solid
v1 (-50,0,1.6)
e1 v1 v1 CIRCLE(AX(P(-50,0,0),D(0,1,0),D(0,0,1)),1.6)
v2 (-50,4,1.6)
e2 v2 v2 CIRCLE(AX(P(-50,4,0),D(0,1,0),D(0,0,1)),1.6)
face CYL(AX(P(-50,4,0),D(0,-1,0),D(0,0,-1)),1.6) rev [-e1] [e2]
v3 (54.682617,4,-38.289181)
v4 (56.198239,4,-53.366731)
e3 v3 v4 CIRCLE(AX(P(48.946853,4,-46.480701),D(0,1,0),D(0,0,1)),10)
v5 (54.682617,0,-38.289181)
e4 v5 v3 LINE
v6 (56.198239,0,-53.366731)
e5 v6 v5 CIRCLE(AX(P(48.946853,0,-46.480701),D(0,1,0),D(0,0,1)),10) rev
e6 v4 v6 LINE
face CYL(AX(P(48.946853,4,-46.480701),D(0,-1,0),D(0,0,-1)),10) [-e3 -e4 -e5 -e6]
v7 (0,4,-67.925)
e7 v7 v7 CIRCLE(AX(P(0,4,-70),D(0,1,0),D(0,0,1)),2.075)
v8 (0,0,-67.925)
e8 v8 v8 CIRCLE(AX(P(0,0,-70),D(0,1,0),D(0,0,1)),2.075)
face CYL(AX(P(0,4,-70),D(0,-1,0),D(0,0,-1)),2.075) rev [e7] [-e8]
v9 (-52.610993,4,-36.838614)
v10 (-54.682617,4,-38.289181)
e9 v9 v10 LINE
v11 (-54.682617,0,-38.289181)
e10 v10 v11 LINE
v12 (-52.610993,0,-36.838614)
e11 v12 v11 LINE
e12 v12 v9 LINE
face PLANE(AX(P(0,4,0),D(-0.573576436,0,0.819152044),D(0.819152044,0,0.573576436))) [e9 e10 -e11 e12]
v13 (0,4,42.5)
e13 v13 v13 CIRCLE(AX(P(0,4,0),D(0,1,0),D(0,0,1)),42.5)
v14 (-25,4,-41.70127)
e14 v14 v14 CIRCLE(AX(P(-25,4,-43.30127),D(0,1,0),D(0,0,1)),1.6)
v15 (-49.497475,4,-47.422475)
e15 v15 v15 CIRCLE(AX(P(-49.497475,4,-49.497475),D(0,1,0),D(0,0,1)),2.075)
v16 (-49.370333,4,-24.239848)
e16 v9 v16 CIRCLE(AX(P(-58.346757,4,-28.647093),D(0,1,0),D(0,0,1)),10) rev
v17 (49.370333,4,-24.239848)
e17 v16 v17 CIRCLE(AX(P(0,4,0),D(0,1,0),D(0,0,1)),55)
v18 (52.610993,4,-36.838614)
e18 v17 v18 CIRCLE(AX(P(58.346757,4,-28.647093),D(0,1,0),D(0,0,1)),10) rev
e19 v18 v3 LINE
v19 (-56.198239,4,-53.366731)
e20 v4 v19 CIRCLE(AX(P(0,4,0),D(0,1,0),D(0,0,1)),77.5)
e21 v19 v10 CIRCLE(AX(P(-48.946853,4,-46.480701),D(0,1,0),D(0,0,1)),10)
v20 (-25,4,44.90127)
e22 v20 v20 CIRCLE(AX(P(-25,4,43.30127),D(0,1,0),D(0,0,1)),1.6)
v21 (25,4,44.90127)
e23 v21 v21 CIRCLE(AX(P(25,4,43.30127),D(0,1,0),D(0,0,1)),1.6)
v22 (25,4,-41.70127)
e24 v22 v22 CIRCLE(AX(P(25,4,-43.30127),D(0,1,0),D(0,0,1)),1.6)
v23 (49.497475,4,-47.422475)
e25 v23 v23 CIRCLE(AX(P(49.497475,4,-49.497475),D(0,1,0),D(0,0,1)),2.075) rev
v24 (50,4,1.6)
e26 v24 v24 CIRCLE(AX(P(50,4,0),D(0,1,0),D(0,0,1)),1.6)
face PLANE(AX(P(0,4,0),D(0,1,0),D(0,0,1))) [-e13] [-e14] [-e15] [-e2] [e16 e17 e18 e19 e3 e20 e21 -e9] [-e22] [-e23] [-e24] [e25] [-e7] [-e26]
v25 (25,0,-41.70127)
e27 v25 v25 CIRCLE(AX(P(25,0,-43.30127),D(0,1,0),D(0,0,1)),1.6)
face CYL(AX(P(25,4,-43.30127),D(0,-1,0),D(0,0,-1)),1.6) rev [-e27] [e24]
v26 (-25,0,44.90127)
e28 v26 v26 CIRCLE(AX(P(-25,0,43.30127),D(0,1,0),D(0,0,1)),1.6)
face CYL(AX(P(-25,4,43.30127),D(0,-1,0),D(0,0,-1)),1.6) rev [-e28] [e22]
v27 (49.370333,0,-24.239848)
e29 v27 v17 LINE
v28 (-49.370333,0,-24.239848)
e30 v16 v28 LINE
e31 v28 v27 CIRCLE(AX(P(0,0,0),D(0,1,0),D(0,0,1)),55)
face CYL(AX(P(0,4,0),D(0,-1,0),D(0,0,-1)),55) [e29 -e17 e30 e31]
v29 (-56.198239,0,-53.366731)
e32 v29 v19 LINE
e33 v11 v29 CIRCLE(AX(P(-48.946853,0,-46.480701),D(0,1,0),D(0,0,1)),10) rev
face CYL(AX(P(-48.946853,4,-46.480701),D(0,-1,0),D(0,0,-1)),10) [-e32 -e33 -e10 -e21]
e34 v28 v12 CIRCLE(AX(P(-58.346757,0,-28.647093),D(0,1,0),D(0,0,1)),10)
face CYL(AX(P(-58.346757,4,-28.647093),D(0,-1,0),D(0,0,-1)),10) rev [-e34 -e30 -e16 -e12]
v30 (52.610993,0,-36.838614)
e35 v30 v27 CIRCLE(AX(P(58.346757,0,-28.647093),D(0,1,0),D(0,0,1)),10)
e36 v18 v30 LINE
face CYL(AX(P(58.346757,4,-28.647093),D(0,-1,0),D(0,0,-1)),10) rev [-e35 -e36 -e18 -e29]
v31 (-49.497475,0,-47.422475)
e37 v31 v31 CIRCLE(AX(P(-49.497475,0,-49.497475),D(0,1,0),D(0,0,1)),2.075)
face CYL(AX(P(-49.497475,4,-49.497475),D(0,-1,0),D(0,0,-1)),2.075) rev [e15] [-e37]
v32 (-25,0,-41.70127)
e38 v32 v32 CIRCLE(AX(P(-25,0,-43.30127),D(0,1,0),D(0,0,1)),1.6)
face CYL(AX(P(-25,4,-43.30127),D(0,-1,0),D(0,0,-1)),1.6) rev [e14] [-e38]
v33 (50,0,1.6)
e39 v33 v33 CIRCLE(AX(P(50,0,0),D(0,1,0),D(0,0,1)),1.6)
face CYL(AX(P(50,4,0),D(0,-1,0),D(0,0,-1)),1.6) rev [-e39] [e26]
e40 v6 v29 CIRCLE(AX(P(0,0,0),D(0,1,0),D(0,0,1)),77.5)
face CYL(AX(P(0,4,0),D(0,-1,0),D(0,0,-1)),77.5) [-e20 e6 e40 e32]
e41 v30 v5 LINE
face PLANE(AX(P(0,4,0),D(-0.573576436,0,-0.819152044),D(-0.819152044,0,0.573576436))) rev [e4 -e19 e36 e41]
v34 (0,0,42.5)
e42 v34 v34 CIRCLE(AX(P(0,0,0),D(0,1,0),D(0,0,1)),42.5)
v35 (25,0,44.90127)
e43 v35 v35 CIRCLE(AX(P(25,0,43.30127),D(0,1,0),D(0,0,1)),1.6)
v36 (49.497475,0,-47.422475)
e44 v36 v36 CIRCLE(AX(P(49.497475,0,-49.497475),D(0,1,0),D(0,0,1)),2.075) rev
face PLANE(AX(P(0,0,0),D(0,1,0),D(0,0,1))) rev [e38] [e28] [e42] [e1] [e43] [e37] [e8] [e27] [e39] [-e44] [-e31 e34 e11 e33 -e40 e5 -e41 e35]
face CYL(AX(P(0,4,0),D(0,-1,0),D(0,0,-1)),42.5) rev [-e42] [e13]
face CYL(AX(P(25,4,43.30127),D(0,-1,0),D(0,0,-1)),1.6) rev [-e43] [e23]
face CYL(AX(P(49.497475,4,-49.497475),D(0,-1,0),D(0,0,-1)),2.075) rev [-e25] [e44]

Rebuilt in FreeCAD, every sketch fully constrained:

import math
import FreeCAD as App
import Part
import Sketcher
Q = App.Units.Quantity


def edges_at(feature, points):
    """Names of the edges that pass closest to the given points."""
    edges = feature.Shape.Edges
    near = lambda p: min(range(len(edges)), key=lambda i: edges[i].distToShape(Part.Vertex(*p))[0])
    return sorted({f"Edge{near(p) + 1}" for p in points})

doc = App.newDocument("Part")
params = doc.addObject("Spreadsheet::Sheet", "Params")
for row, (alias, value) in enumerate([
    ("sketch1_radius", "55 mm"),
    ("sketch1_diameter", "3.2 mm"),
    ("sketch1_radius2", "77.5 mm"),
    ("sketch1_radius3", "42.5 mm"),
    ("sketch1_diameter2", "4.15 mm"),
    ("pad1_length", "4 mm"),
    ("fillet_radius", "10 mm"),
], start=1):
    params.set(f"A{row}", alias)
    params.set(f"B{row}", "=" + value)
    params.setAlias(f"B{row}", alias)

body = doc.addObject("PartDesign::Body", "Body")

# Sketch on XZ plane
sketch1 = body.newObject("Sketcher::SketchObject", "Sketch")
sketch1.AttachmentSupport = (doc.getObject("XZ_Plane"), [""])
sketch1.MapMode = "FlatFace"
sketch1.addGeometry([
    Part.LineSegment(App.Vector(-63.5, -44.5, 0), App.Vector(-45.1, -31.5, 0)),  # 0
    Part.ArcOfCircle(Part.Circle(App.Vector(0, 0, 0), App.Vector(0, 0, 1), 55), math.radians(0), math.radians(215)),  # 1
    Part.ArcOfCircle(Part.Circle(App.Vector(0, 0, 0), App.Vector(0, 0, 1), 55), math.radians(-35), math.radians(0)),  # 2
    Part.LineSegment(App.Vector(45.1, -31.5, 0), App.Vector(63.5, -44.5, 0)),  # 3
    Part.ArcOfCircle(Part.Circle(App.Vector(0, 0, 0), App.Vector(0, 0, 1), 77.5), math.radians(-145), math.radians(-35)),  # 4
    Part.Circle(App.Vector(-49.5, -49.5, 0), App.Vector(0, 0, 1), 2.1),  # 5
    Part.Circle(App.Vector(49.5, -49.5, 0), App.Vector(0, 0, 1), 2.1),  # 6
    Part.Circle(App.Vector(0, -70, 0), App.Vector(0, 0, 1), 2.1),  # 7
    Part.Circle(App.Vector(25, -43.3, 0), App.Vector(0, 0, 1), 1.6),  # 8
    Part.ArcOfCircle(Part.Circle(App.Vector(0, 0, 0), App.Vector(0, 0, 1), 42.5), math.radians(-145), math.radians(-35)),  # 9
    Part.ArcOfCircle(Part.Circle(App.Vector(0, 0, 0), App.Vector(0, 0, 1), 42.5), math.radians(-35), math.radians(0)),  # 10
    Part.ArcOfCircle(Part.Circle(App.Vector(0, 0, 0), App.Vector(0, 0, 1), 42.5), math.radians(0), math.radians(215)),  # 11
    Part.Circle(App.Vector(-25, -43.3, 0), App.Vector(0, 0, 1), 1.6),  # 12
    Part.Circle(App.Vector(50, 0, 0), App.Vector(0, 0, 1), 1.6),  # 13
    Part.Circle(App.Vector(-50, 0, 0), App.Vector(0, 0, 1), 1.6),  # 14
    Part.Circle(App.Vector(-25, 43.3, 0), App.Vector(0, 0, 1), 1.6),  # 15
    Part.Circle(App.Vector(25, 43.3, 0), App.Vector(0, 0, 1), 1.6),  # 16
], False)
sketch1.addConstraint([
    Sketcher.Constraint("Coincident", 0, 2, 1, 2),
    Sketcher.Constraint("Tangent", 1, 1, 2, 2),
    Sketcher.Constraint("Coincident", 2, 1, 3, 1),
    Sketcher.Constraint("Coincident", 3, 2, 4, 2),
    Sketcher.Constraint("Coincident", 4, 1, 0, 1),
    Sketcher.Constraint("Tangent", 9, 2, 10, 1),
    Sketcher.Constraint("Tangent", 10, 2, 11, 1),
    Sketcher.Constraint("Tangent", 11, 2, 9, 1),
    Sketcher.Constraint("Coincident", 1, 3, -1, 1),
    Sketcher.Constraint("Coincident", 4, 3, -1, 1),
    Sketcher.Constraint("Coincident", 9, 3, -1, 1),
    Sketcher.Constraint("Equal", 1, 2),
    Sketcher.Constraint("Equal", 5, 6),
    Sketcher.Constraint("Equal", 6, 7),
    Sketcher.Constraint("Equal", 8, 12),
    Sketcher.Constraint("Equal", 12, 13),
    Sketcher.Constraint("Equal", 13, 14),
    Sketcher.Constraint("Equal", 14, 15),
    Sketcher.Constraint("Equal", 15, 16),
    Sketcher.Constraint("Symmetric", 13, 3, 14, 3, -1, 1),
    Sketcher.Constraint("Symmetric", 8, 3, 15, 3, -1, 1),
    Sketcher.Constraint("Symmetric", 12, 3, 16, 3, -1, 1),
    Sketcher.Constraint("Symmetric", 5, 3, 6, 3, -2),
    Sketcher.Constraint("Symmetric", 8, 3, 12, 3, -2),
    Sketcher.Constraint("PointOnObject", 7, 3, -2),
    Sketcher.Constraint("PointOnObject", 13, 3, -1),
    Sketcher.Constraint("PointOnObject", 1, 1, -1),
    Sketcher.Constraint("PointOnObject", 10, 2, -1),
    Sketcher.Constraint("Horizontal", 0, 2, 2, 1),
    Sketcher.Constraint("Horizontal", 3, 2, 4, 1),
    Sketcher.Constraint("Horizontal", 9, 2, 11, 2),
    Sketcher.Constraint("Radius", 1, Q("55 mm")),
    Sketcher.Constraint("Diameter", 8, Q("3.2 mm")),
    Sketcher.Constraint("Radius", 4, Q("77.5 mm")),
    Sketcher.Constraint("Radius", 9, Q("42.5 mm")),
    Sketcher.Constraint("Diameter", 5, Q("4.15 mm")),
    Sketcher.Constraint("Angle", 0, Q("35 deg")),
    Sketcher.Constraint("DistanceY", 7, 3, -1, 1, Q("70 mm")),
    Sketcher.Constraint("DistanceX", -1, 1, 8, 3, Q("25 mm")),
    Sketcher.Constraint("DistanceX", -1, 1, 13, 3, Q("50 mm")),
    Sketcher.Constraint("DistanceY", 9, 2, -1, 1, Q("24.376999 mm")),
    Sketcher.Constraint("DistanceY", 6, 3, 3, 2, Q("5.045301 mm")),
    Sketcher.Constraint("DistanceX", 9, 2, 2, 1, Q("10.239401 mm")),
    Sketcher.Constraint("DistanceY", 8, 3, -1, 1, Q("43.30127 mm")),
    Sketcher.Constraint("DistanceX", 5, 3, 6, 3, Q("98.994949 mm")),
])
sketch1.setExpression("Constraints[31]", "Params.sketch1_radius")
sketch1.setExpression("Constraints[32]", "Params.sketch1_diameter")
sketch1.setExpression("Constraints[33]", "Params.sketch1_radius2")
sketch1.setExpression("Constraints[34]", "Params.sketch1_radius3")
sketch1.setExpression("Constraints[35]", "Params.sketch1_diameter2")
pad1 = body.newObject("PartDesign::Pad", "Pad")
pad1.Profile = sketch1
pad1.setExpression("Length", "Params.pad1_length")
pad1.Reversed = True
doc.recompute()

fillet = body.newObject("PartDesign::Fillet", "Fillet")
fillet.Base = (pad1, edges_at(pad1, [
    (-45.053, 2, -31.547),
    (-63.484, 2, -44.452),
    (63.484, 2, -44.452),
    (45.053, 2, -31.547),
]))
fillet.setExpression("Radius", "Params.fillet_radius")

doc.recompute()
